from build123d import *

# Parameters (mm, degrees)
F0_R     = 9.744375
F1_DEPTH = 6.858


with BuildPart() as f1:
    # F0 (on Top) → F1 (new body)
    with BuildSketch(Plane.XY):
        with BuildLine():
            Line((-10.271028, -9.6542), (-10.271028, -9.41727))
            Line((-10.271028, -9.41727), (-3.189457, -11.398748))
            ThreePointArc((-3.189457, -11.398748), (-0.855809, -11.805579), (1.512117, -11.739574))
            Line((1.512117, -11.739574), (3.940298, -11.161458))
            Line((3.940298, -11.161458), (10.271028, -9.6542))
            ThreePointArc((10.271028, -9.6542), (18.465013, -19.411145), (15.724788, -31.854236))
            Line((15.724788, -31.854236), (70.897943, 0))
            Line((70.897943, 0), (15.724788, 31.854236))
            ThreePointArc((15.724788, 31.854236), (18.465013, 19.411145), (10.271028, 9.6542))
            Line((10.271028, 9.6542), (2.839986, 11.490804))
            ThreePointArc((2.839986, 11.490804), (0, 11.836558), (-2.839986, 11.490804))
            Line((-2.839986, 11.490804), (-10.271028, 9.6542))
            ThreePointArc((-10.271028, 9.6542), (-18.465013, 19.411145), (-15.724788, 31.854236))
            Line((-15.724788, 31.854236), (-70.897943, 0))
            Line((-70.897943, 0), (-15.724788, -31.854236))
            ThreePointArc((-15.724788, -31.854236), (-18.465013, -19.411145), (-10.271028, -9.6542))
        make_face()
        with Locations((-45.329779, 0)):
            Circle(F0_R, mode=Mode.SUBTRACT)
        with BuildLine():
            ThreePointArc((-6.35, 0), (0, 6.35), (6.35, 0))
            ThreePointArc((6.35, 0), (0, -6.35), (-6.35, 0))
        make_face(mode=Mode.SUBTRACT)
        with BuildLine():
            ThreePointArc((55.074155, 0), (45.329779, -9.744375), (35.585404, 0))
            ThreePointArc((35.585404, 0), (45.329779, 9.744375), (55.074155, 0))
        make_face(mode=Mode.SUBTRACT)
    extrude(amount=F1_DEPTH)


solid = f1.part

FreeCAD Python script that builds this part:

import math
import FreeCAD as App
import Part
import Sketcher
from FreeCAD import Vector
Q = App.Units.Quantity

doc = App.newDocument("Part")
body = doc.addObject("PartDesign::Body", "Body")

# Sketch on XY plane
sketch1 = body.newObject("Sketcher::SketchObject", "Sketch")
sketch1.AttachmentSupport = (doc.getObject("XY_Plane"), [""])
sketch1.MapMode = "FlatFace"
sketch1.addGeometry(Part.LineSegment(Vector(-10.27, -9.65, 0), Vector(-10.27, -9.42, 0)), False)
sketch1.addGeometry(Part.LineSegment(Vector(-10.27, -9.42, 0), Vector(-3.19, -11.4, 0)), False)
sketch1.addGeometry(Part.ArcOfCircle(Part.Circle(Vector(0, 0, 0), Vector(0, 0, 1), 11.84), math.radians(-106), math.radians(-83)), False)
sketch1.addGeometry(Part.LineSegment(Vector(1.51, -11.74, 0), Vector(3.94, -11.16, 0)), False)
sketch1.addGeometry(Part.LineSegment(Vector(3.94, -11.16, 0), Vector(10.27, -9.65, 0)), False)
sketch1.addGeometry(Part.ArcOfCircle(Part.Circle(Vector(4.46, -22.85, 0), Vector(0, 0, 1), 14.42), math.radians(-39), math.radians(66)), False)
sketch1.addGeometry(Part.LineSegment(Vector(15.72, -31.85, 0), Vector(70.9, 0, 0)), False)
sketch1.addGeometry(Part.LineSegment(Vector(70.9, 0, 0), Vector(15.72, 31.85, 0)), False)
sketch1.addGeometry(Part.ArcOfCircle(Part.Circle(Vector(4.46, 22.85, 0), Vector(0, 0, 1), 14.42), math.radians(-66), math.radians(39)), False)
sketch1.addGeometry(Part.LineSegment(Vector(10.27, 9.65, 0), Vector(2.84, 11.49, 0)), False)
sketch1.addGeometry(Part.ArcOfCircle(Part.Circle(Vector(0, 0, 0), Vector(0, 0, 1), 11.84), math.radians(76), math.radians(104)), False)
sketch1.addGeometry(Part.LineSegment(Vector(-2.84, 11.49, 0), Vector(-10.27, 9.65, 0)), False)
sketch1.addGeometry(Part.ArcOfCircle(Part.Circle(Vector(-4.46, 22.85, 0), Vector(0, 0, 1), 14.42), math.radians(141), math.radians(246)), False)
sketch1.addGeometry(Part.LineSegment(Vector(-15.72, 31.85, 0), Vector(-70.9, 0, 0)), False)
sketch1.addGeometry(Part.LineSegment(Vector(-70.9, 0, 0), Vector(-15.72, -31.85, 0)), False)
sketch1.addGeometry(Part.ArcOfCircle(Part.Circle(Vector(-4.46, -22.85, 0), Vector(0, 0, 1), 14.42), math.radians(114), math.radians(219)), False)
sketch1.addGeometry(Part.Circle(Vector(-45.33, 0, 0), Vector(0, 0, 1), 9.74), False)
sketch1.addGeometry(Part.Circle(Vector(0, 0, 0), Vector(0, 0, 1), 6.35), False)
sketch1.addGeometry(Part.ArcOfCircle(Part.Circle(Vector(45.33, 0, 0), Vector(0, 0, 1), 9.74), math.radians(0), math.radians(180)), False)
sketch1.addGeometry(Part.ArcOfCircle(Part.Circle(Vector(45.33, 0, 0), Vector(0, 0, 1), 9.74), math.radians(-180), math.radians(0)), False)
sketch1.addConstraint(Sketcher.Constraint("Coincident", 0, 2, 1, 1))
sketch1.addConstraint(Sketcher.Constraint("Tangent", 1, 2, 2, 1))
sketch1.addConstraint(Sketcher.Constraint("Coincident", 2, 2, 3, 1))
sketch1.addConstraint(Sketcher.Constraint("Coincident", 3, 2, 4, 1))
sketch1.addConstraint(Sketcher.Constraint("Coincident", 4, 2, 5, 2))
sketch1.addConstraint(Sketcher.Constraint("Coincident", 5, 1, 6, 1))
sketch1.addConstraint(Sketcher.Constraint("Coincident", 6, 2, 7, 1))
sketch1.addConstraint(Sketcher.Constraint("Coincident", 7, 2, 8, 2))
sketch1.addConstraint(Sketcher.Constraint("Coincident", 8, 1, 9, 1))
sketch1.addConstraint(Sketcher.Constraint("Tangent", 9, 2, 10, 1))
sketch1.addConstraint(Sketcher.Constraint("Tangent", 10, 2, 11, 1))
sketch1.addConstraint(Sketcher.Constraint("Coincident", 11, 2, 12, 2))
sketch1.addConstraint(Sketcher.Constraint("Coincident", 12, 1, 13, 1))
sketch1.addConstraint(Sketcher.Constraint("Coincident", 13, 2, 14, 1))
sketch1.addConstraint(Sketcher.Constraint("Coincident", 14, 2, 15, 2))
sketch1.addConstraint(Sketcher.Constraint("Coincident", 15, 1, 0, 1))
sketch1.addConstraint(Sketcher.Constraint("Tangent", 18, 1, 19, 2))
sketch1.addConstraint(Sketcher.Constraint("Coincident", 19, 1, 18, 2))
sketch1.addConstraint(Sketcher.Constraint("Vertical", 0))
sketch1.addConstraint(Sketcher.Constraint("Coincident", 17, 3, -1, 1))
sketch1.addConstraint(Sketcher.Constraint("Equal", 5, 8))
sketch1.addConstraint(Sketcher.Constraint("Equal", 8, 12))
sketch1.addConstraint(Sketcher.Constraint("Equal", 12, 15))
sketch1.addConstraint(Sketcher.Constraint("Equal", 16, 18))
sketch1.addConstraint(Sketcher.Constraint("Symmetric", 5, 3, 12, 3, -1, 1))
sketch1.addConstraint(Sketcher.Constraint("Symmetric", 8, 3, 15, 3, -1, 1))
sketch1.addConstraint(Sketcher.Constraint("Symmetric", 16, 3, 18, 3, -1, 1))
sketch1.addConstraint(Sketcher.Constraint("Symmetric", 6, 2, 13, 2, -1, 1))
sketch1.addConstraint(Sketcher.Constraint("Symmetric", 8, 3, 12, 3, -2))
sketch1.addConstraint(Sketcher.Constraint("Symmetric", 9, 2, 10, 2, -2))
sketch1.addConstraint(Sketcher.Constraint("PointOnObject", 2, 3, -2))
sketch1.addConstraint(Sketcher.Constraint("PointOnObject", 16, 3, -1))
sketch1.addConstraint(Sketcher.Constraint("PointOnObject", 6, 2, -1))
sketch1.addConstraint(Sketcher.Constraint("PointOnObject", 18, 1, -1))
sketch1.addConstraint(Sketcher.Constraint("PointOnObject", 19, 1, -1))
sketch1.addConstraint(Sketcher.Constraint("Parallel", 3, 4))
sketch1.addConstraint(Sketcher.Constraint("Parallel", 6, 13))
sketch1.addConstraint(Sketcher.Constraint("Parallel", 7, 14))
sketch1.addConstraint(Sketcher.Constraint("Horizontal", 7, 2, 12, 1))
sketch1.addConstraint(Sketcher.Constraint("Horizontal", 4, 2, 15, 1))
sketch1.addConstraint(Sketcher.Constraint("Vertical", 4, 2, 8, 1))
sketch1.addConstraint(Sketcher.Constraint("Diameter", 17, Q("0.5 in")))
sketch1.addConstraint(Sketcher.Constraint("Angle", 6, Q("30 deg")))
sketch1.addConstraint(Sketcher.Constraint("Diameter", 16, 19.48875))
sketch1.addConstraint(Sketcher.Constraint("DistanceX", -1, 1, 19, 1, Q("1.4010002 in")))
sketch1.addConstraint(Sketcher.Constraint("Radius", 2, 11.836535))
sketch1.addConstraint(Sketcher.Constraint("Radius", 5, 14.418218))
sketch1.addConstraint(Sketcher.Constraint("Radius", 10, 11.836546))
sketch1.addConstraint(Sketcher.Constraint("DistanceY", 0, 1, 0, 2, 0.23693))
sketch1.addConstraint(Sketcher.Constraint("DistanceY", 4, 2, -1, 1, 9.6542))
sketch1.addConstraint(Sketcher.Constraint("DistanceY", 10, 3, 8, 3, 22.8509))
sketch1.addConstraint(Sketcher.Constraint("DistanceX", 16, 3, 5, 3, 49.792899))
sketch1.addConstraint(Sketcher.Constraint("DistanceX", 2, 3, 3, 2, 3.940299))
sketch1.addConstraint(Sketcher.Constraint("Distance", 6, 63.708472))
sketch1.addConstraint(Sketcher.Constraint("Distance", 9, 7.654639))
sketch1.addConstraint(Sketcher.Constraint("DistanceY", 5, 3, 2, 3, 22.850889))
sketch1.addConstraint(Sketcher.Constraint("DistanceY", 5, 3, 2, 2, 11.111338))
pad1 = body.newObject("PartDesign::Pad", "Pad")
pad1.Profile = sketch1
pad1.Length = Q("0.27 in")

doc.recompute()
